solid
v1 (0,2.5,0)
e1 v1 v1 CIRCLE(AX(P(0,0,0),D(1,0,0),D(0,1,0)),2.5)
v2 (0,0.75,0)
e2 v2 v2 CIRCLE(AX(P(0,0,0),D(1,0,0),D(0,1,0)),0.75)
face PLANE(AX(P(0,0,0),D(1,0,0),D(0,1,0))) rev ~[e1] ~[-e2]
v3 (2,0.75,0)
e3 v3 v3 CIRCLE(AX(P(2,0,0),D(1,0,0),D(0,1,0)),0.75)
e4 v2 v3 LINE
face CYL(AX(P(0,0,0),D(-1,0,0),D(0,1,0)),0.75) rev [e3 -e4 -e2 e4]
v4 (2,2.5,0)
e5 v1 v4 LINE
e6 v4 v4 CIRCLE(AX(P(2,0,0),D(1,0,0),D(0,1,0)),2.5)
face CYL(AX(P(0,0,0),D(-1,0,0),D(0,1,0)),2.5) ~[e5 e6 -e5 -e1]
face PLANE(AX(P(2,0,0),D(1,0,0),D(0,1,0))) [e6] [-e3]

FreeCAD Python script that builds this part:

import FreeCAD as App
import Part
import Sketcher

V = App.Vector
Q = App.Units.Quantity

doc = App.newDocument("Part")
params = doc.addObject("Spreadsheet::Sheet", "Params")
for row, (alias, value) in enumerate([
    ("sketch1_diameter", "5 mm"),
    ("sketch1_diameter2", "1.5 mm"),
    ("pad1_length", "2 mm"),
], start=1):
    params.set(f"A{row}", alias)
    params.set(f"B{row}", "=" + value)
    params.setAlias(f"B{row}", alias)

body = doc.addObject("PartDesign::Body", "Body")

sketch1 = body.newObject("Sketcher::SketchObject", "Sketch")
sketch1.AttachmentSupport = (doc.getObject("YZ_Plane"), [""])
sketch1.MapMode = "FlatFace"
sketch1.addGeometry(Part.Circle(V(0, 0, 0), V(0, 0, 1), 2.5), False)
sketch1.addGeometry(Part.Circle(V(0, 0, 0), V(0, 0, 1), 0.8), False)
sketch1.addConstraint(Sketcher.Constraint("Coincident", 0, 3, -1, 1))
sketch1.addConstraint(Sketcher.Constraint("Coincident", 1, 3, -1, 1))
sketch1.addConstraint(Sketcher.Constraint("Diameter", 0, Q("5 mm")))
sketch1.addConstraint(Sketcher.Constraint("Diameter", 1, Q("1.5 mm")))
sketch1.setExpression("Constraints[2]", "Params.sketch1_diameter")
sketch1.setExpression("Constraints[3]", "Params.sketch1_diameter2")
pad1 = body.newObject("PartDesign::Pad", "Pad")
pad1.Profile = sketch1
pad1.setExpression("Length", "Params.pad1_length")

doc.recompute()
